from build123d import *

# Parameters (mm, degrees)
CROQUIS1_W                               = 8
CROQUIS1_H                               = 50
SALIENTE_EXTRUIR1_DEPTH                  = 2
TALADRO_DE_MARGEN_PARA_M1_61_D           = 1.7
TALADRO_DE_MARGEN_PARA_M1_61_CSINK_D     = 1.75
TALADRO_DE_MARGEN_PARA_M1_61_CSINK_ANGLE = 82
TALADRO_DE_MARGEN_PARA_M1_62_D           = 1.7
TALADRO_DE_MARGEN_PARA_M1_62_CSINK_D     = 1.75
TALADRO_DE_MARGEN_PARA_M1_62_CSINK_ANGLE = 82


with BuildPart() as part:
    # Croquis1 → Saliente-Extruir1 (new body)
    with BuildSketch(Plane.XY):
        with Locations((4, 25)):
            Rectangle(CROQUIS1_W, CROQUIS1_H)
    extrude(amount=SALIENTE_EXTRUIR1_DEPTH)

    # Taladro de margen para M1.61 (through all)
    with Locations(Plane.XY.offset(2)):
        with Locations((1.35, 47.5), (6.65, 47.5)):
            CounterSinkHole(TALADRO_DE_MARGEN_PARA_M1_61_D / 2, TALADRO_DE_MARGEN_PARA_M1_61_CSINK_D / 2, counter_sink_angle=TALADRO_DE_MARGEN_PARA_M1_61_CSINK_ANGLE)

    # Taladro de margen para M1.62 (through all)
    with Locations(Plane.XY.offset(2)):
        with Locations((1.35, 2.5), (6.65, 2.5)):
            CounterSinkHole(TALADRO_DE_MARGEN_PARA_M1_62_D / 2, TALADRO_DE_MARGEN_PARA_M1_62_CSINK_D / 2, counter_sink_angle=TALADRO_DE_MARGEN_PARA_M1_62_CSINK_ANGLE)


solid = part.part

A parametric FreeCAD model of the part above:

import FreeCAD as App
import Part
import Sketcher

doc = App.newDocument("Part")
params = doc.addObject("Spreadsheet::Sheet", "Params")
for row, (alias, value) in enumerate([
    ("sketch1_width", "8 mm"),
    ("sketch1_height", "50 mm"),
    ("pad1_length", "2 mm"),
    ("sketch2_diameter", "1.7 mm"),
    ("hole_diameter", "1.7 mm"),
    ("hole_csink_diameter", "1.75 mm"),
    ("sketch3_diameter", "1.7 mm"),
    ("hole2_diameter", "1.7 mm"),
    ("hole2_csink_diameter", "1.75 mm"),
], start=1):
    params.set(f"A{row}", alias)
    params.set(f"B{row}", "=" + value)
    params.setAlias(f"B{row}", alias)

body = doc.addObject("PartDesign::Body", "Body")

# Sketch on XY plane
sketch1 = doc.addObject("Sketcher::SketchObject", "Sketch")
body.addObject(sketch1)
sketch1.AttachmentSupport = (doc.XY_Plane, [""])
sketch1.MapMode = "FlatFace"
sketch1.addGeometry([
    Part.LineSegment(App.Vector(0, 50, 0), App.Vector(0, 0, 0)),
    Part.LineSegment(App.Vector(0, 0, 0), App.Vector(8, 0, 0)),
    Part.LineSegment(App.Vector(8, 0, 0), App.Vector(8, 50, 0)),
    Part.LineSegment(App.Vector(8, 50, 0), App.Vector(0, 50, 0)),
], False)
sketch1.addConstraint([
    Sketcher.Constraint("Coincident", 0, 2, 1, 1),
    Sketcher.Constraint("Coincident", 1, 2, 2, 1),
    Sketcher.Constraint("Coincident", 2, 2, 3, 1),
    Sketcher.Constraint("Coincident", 3, 2, 0, 1),
    Sketcher.Constraint("Vertical", 0),
    Sketcher.Constraint("Horizontal", 1),
    Sketcher.Constraint("Vertical", 2),
    Sketcher.Constraint("Horizontal", 3),
    Sketcher.Constraint("Coincident", 0, 2, -1, 1),
    Sketcher.Constraint("DistanceX", 1, 1, 1, 2, 8.0),
    Sketcher.Constraint("DistanceY", 0, 2, 0, 1, 50.0),
])
sketch1.setExpression("Constraints[9]", "Params.sketch1_width")
sketch1.setExpression("Constraints[10]", "Params.sketch1_height")
pad1 = doc.addObject("PartDesign::Pad", "Pad")
body.addObject(pad1)
pad1.Profile = sketch1
pad1.setExpression("Length", "Params.pad1_length")

# Sketch on XY plane
sketch2 = doc.addObject("Sketcher::SketchObject", "Sketch001")
body.addObject(sketch2)
sketch2.AttachmentSupport = (doc.XY_Plane, [""])
sketch2.MapMode = "FlatFace"
sketch2.AttachmentOffset = App.Placement(App.Vector(0, 0, 2), App.Rotation())
sketch2.addGeometry([
    Part.Circle(App.Vector(1.4, 47.5, 0), App.Vector(0, 0, 1), 0.8),
    Part.Circle(App.Vector(6.7, 47.5, 0), App.Vector(0, 0, 1), 0.8),
], False)
sketch2.addConstraint([
    Sketcher.Constraint("Equal", 0, 1),
    Sketcher.Constraint("Horizontal", 0, 3, 1, 3),
    Sketcher.Constraint("Diameter", 0, 1.7),
    Sketcher.Constraint("DistanceY", -1, 1, 0, 3, 47.5),
    Sketcher.Constraint("DistanceX", 0, 3, 1, 3, 5.3),
    Sketcher.Constraint("DistanceX", -1, 1, 0, 3, 1.35),
])
sketch2.setExpression("Constraints[2]", "Params.sketch2_diameter")
doc.recompute()
hole = doc.addObject("PartDesign::Hole", "Hole")
body.addObject(hole)
hole.Profile = sketch2
hole.ThreadType = "None"
hole.setExpression("Diameter", "Params.hole_diameter")
hole.DepthType = "ThroughAll"
hole.HoleCutType = "Countersink"
hole.setExpression("HoleCutDiameter", "Params.hole_csink_diameter")
hole.HoleCutCountersinkAngle = 82

# Sketch on XY plane
sketch3 = doc.addObject("Sketcher::SketchObject", "Sketch002")
body.addObject(sketch3)
sketch3.AttachmentSupport = (doc.XY_Plane, [""])
sketch3.MapMode = "FlatFace"
sketch3.AttachmentOffset = App.Placement(App.Vector(0, 0, 2), App.Rotation())
sketch3.addGeometry([
    Part.Circle(App.Vector(1.4, 2.5, 0), App.Vector(0, 0, 1), 0.8),
    Part.Circle(App.Vector(6.7, 2.5, 0), App.Vector(0, 0, 1), 0.8),
], False)
sketch3.addConstraint([
    Sketcher.Constraint("Equal", 0, 1),
    Sketcher.Constraint("Horizontal", 0, 3, 1, 3),
    Sketcher.Constraint("Diameter", 0, 1.7),
    Sketcher.Constraint("DistanceY", -1, 1, 0, 3, 2.5),
    Sketcher.Constraint("DistanceX", 0, 3, 1, 3, 5.3),
    Sketcher.Constraint("DistanceX", -1, 1, 0, 3, 1.35),
])
sketch3.setExpression("Constraints[2]", "Params.sketch3_diameter")
doc.recompute()
hole2 = doc.addObject("PartDesign::Hole", "Hole001")
body.addObject(hole2)
hole2.Profile = sketch3
hole2.ThreadType = "None"
hole2.setExpression("Diameter", "Params.hole2_diameter")
hole2.DepthType = "ThroughAll"
hole2.HoleCutType = "Countersink"
hole2.setExpression("HoleCutDiameter", "Params.hole2_csink_diameter")
hole2.HoleCutCountersinkAngle = 82

doc.recompute()
